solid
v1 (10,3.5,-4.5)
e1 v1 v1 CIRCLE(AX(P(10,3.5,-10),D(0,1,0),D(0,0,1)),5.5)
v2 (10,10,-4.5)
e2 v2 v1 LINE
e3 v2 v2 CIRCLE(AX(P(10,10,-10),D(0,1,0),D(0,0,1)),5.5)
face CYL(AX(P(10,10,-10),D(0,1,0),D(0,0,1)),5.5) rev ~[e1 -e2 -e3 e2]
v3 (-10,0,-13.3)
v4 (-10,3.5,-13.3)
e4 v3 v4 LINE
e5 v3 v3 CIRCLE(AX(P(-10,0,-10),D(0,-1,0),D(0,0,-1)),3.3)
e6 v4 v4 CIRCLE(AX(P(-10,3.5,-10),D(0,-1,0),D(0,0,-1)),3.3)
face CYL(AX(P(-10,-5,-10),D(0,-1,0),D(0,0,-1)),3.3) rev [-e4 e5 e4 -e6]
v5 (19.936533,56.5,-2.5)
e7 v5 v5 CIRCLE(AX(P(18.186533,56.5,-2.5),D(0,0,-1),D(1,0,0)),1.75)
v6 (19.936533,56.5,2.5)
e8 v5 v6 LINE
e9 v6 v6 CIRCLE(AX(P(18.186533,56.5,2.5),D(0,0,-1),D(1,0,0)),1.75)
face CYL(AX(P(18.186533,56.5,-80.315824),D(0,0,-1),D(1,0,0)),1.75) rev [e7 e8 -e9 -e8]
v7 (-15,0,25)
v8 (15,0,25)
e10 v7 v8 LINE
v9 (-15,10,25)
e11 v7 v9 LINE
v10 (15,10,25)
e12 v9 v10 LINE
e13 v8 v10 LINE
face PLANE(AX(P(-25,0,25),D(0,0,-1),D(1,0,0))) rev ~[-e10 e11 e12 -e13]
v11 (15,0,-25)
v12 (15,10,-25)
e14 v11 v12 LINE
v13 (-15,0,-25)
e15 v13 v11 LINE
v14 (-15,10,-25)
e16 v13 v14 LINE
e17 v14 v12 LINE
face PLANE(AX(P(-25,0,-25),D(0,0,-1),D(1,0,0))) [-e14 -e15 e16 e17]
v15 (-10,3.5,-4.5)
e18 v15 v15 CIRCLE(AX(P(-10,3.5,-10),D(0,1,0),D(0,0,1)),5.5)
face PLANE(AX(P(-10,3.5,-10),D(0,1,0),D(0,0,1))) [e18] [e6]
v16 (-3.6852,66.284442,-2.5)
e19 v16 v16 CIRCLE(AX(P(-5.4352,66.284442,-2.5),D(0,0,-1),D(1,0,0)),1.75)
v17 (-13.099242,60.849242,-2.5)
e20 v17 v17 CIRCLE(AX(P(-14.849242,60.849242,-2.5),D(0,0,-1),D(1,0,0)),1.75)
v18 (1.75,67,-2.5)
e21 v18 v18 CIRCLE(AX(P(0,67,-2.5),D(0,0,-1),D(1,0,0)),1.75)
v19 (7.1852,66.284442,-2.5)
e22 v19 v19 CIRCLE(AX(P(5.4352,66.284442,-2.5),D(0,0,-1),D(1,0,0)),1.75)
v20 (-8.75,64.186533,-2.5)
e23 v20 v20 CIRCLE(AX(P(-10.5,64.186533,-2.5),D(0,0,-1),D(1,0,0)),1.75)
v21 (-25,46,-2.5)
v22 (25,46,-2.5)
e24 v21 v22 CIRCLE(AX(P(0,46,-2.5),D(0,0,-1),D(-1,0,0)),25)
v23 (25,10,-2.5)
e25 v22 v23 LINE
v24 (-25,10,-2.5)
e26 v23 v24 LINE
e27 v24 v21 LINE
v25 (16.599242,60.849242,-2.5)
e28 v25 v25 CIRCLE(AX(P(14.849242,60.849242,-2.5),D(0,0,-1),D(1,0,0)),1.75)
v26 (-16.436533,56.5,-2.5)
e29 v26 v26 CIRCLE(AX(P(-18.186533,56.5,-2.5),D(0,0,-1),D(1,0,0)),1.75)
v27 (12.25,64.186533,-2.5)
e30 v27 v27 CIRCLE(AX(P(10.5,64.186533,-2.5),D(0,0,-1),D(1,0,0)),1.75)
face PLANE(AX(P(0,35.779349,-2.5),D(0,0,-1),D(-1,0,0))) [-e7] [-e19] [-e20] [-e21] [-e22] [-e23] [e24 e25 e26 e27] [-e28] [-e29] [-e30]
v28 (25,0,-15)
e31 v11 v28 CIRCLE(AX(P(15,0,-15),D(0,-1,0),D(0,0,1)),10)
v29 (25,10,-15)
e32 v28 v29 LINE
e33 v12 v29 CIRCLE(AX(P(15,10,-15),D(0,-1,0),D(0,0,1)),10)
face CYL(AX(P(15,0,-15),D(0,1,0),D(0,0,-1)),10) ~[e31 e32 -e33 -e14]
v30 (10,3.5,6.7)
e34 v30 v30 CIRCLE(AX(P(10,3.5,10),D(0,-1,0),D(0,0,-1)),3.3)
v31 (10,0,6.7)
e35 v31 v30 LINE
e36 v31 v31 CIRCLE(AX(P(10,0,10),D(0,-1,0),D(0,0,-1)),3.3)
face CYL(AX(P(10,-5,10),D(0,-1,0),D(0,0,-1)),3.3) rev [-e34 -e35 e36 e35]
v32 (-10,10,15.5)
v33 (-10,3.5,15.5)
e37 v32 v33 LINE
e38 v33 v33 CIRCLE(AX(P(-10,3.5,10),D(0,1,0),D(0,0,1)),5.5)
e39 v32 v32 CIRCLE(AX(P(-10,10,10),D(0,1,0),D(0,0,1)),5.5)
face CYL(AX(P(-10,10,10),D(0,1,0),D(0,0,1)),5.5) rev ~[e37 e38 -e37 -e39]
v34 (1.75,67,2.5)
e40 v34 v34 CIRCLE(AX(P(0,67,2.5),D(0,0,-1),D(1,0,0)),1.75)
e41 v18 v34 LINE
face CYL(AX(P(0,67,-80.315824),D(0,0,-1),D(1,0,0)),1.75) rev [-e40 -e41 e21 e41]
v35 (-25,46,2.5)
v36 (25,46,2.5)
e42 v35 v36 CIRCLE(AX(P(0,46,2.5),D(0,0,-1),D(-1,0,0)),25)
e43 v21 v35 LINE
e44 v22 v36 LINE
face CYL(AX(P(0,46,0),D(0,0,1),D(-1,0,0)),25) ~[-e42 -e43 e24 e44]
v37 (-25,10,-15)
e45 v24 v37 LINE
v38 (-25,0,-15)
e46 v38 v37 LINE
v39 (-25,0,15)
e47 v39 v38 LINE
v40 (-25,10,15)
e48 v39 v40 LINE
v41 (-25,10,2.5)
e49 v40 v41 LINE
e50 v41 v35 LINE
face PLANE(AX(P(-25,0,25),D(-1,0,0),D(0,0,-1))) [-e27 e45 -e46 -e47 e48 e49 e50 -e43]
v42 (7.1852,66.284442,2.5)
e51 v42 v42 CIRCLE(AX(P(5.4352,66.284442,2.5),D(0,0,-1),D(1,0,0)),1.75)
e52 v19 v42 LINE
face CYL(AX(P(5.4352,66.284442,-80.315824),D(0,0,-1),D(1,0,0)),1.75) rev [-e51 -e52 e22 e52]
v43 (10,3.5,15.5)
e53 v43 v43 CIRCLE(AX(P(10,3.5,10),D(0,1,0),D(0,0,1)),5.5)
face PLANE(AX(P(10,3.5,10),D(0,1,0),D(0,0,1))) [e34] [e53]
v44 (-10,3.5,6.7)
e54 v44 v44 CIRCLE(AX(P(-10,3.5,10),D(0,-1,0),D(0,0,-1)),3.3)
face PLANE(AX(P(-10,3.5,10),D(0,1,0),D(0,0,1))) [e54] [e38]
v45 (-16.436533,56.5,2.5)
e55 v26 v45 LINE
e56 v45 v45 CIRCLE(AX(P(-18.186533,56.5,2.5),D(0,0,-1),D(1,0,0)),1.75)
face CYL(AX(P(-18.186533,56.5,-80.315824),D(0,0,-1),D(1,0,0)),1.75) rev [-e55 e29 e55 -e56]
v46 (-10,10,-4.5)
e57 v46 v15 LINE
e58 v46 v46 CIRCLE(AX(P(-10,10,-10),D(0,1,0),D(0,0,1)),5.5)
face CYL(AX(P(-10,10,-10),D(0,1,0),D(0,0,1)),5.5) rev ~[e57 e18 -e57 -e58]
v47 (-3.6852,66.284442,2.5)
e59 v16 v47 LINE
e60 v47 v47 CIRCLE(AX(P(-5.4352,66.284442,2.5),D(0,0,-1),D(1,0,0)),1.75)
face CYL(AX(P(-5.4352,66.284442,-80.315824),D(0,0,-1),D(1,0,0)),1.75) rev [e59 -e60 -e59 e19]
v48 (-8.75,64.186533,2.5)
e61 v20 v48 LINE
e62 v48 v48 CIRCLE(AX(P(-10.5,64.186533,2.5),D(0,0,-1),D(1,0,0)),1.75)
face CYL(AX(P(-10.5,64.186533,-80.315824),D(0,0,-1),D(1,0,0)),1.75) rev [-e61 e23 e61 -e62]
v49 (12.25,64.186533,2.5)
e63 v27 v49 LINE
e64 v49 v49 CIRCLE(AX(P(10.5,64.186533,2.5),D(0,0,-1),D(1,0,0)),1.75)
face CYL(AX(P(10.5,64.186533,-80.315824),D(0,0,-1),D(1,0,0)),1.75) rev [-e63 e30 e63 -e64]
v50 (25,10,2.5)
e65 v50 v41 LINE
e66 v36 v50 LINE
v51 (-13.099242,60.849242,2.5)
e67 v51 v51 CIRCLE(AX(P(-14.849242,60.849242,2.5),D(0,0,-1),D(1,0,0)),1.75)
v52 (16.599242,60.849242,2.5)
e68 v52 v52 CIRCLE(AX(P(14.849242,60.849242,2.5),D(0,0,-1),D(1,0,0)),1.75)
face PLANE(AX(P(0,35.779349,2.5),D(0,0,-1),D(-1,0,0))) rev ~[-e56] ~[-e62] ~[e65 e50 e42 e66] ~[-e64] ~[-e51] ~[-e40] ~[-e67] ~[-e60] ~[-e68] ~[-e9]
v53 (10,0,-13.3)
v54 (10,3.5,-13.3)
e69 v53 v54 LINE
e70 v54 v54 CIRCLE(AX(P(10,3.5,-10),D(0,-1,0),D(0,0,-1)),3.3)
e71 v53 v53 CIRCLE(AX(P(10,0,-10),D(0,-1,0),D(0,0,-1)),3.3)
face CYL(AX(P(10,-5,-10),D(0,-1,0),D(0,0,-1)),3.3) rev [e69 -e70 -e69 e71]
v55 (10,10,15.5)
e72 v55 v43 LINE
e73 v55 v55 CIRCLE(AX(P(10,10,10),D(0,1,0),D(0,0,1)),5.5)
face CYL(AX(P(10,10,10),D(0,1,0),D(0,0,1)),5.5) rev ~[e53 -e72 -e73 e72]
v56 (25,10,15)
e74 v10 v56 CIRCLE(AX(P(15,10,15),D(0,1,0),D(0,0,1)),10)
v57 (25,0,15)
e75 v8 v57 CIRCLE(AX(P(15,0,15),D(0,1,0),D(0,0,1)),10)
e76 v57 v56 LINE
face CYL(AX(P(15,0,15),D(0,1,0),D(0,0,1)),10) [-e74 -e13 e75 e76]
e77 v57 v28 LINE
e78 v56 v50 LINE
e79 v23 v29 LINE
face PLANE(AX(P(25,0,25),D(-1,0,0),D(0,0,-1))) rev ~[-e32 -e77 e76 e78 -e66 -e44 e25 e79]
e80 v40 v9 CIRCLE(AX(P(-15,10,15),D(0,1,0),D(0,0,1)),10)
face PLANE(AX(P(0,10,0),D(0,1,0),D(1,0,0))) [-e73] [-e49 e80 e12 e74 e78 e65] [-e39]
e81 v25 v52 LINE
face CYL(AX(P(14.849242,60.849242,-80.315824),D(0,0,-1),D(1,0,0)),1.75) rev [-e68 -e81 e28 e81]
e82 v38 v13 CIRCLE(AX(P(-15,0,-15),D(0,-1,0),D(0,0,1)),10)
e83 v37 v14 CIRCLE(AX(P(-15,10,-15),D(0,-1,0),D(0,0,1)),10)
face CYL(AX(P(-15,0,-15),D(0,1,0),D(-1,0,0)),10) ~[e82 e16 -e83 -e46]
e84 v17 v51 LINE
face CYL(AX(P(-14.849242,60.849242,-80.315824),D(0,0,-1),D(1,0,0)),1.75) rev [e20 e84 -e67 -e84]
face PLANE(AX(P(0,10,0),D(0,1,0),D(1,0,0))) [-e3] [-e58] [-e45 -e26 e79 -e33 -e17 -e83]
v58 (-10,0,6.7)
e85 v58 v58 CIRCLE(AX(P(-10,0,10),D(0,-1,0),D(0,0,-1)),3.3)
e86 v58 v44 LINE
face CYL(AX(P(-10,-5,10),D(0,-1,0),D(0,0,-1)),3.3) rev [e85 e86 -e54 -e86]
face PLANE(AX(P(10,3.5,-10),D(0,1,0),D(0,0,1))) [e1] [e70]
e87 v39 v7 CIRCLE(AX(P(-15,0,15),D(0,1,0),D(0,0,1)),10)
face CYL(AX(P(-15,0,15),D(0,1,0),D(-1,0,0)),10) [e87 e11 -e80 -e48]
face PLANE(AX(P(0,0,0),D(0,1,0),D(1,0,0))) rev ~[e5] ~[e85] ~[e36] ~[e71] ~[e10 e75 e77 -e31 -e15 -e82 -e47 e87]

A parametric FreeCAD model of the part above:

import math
import FreeCAD as App
import Part
import Sketcher

V = App.Vector


def edges_at(feature, points):
    """Names of the edges that pass closest to the given points."""
    edges = feature.Shape.Edges
    near = lambda p: min(range(len(edges)), key=lambda i: edges[i].distToShape(Part.Vertex(*p))[0])
    return sorted({f"Edge{near(p) + 1}" for p in points})


def add_polygon(sketch, points):
    """Adds a closed chain of lines whose ends are joined by coincident constraints."""
    first, n = sketch.GeometryCount, len(points)
    for a, b in zip(points, points[1:] + points[:1]):
        sketch.addGeometry(Part.LineSegment(App.Vector(*a, 0), App.Vector(*b, 0)), False)
    for i in range(n):
        sketch.addConstraint(Sketcher.Constraint("Coincident", first + i, 2, first + (i + 1) % n, 1))

doc = App.newDocument("Part")
body = doc.addObject("PartDesign::Body", "Body")

sketch1 = body.newObject("Sketcher::SketchObject", "Sketch")
sketch1.AttachmentSupport = (doc.getObject("XZ_Plane"), [""])
sketch1.MapMode = "FlatFace"
add_polygon(sketch1, [(-25, -25), (-25, 25), (25, 25), (25, -25)])
sketch1.addConstraint([
    Sketcher.Constraint("Vertical", 0),
    Sketcher.Constraint("Horizontal", 1),
    Sketcher.Constraint("Vertical", 2),
    Sketcher.Constraint("Horizontal", 3),
    Sketcher.Constraint("Symmetric", 0, 2, 2, 2, -1, 1),
    Sketcher.Constraint("Equal", 3, 0),
    Sketcher.Constraint("DistanceX", 1, 1, 1, 2, 50.0),
])
pad1 = body.newObject("PartDesign::Pad", "Pad")
pad1.Profile = sketch1
pad1.Length = 10
pad1.Reversed = True

sketch2 = body.newObject("Sketcher::SketchObject", "Sketch001")
sketch2.AttachmentSupport = (doc.getObject("XY_Plane"), [""])
sketch2.MapMode = "FlatFace"
sketch2.addGeometry([
    Part.LineSegment(V(25, 10, 0), V(25, 46, 0)),
    Part.ArcOfCircle(Part.Circle(V(0, 46, 0), V(0, 0, 1), 25), math.radians(0), math.radians(180)),
    Part.LineSegment(V(-25, 46, 0), V(-25, 10, 0)),
    Part.LineSegment(V(-25, 10, 0), V(25, 10, 0)),
], False)
sketch2.addConstraint([
    Sketcher.Constraint("Tangent", 0, 2, 1, 1),
    Sketcher.Constraint("Tangent", 1, 2, 2, 1),
    Sketcher.Constraint("Coincident", 2, 2, 3, 1),
    Sketcher.Constraint("Coincident", 3, 2, 0, 1),
    Sketcher.Constraint("Vertical", 0),
    Sketcher.Constraint("Vertical", 2),
    Sketcher.Constraint("Horizontal", 3),
    Sketcher.Constraint("PointOnObject", 1, 3, -2),
    Sketcher.Constraint("Radius", 1, 25.0),
    Sketcher.Constraint("DistanceY", 0, 1, 0, 2, 36.0),
    Sketcher.Constraint("DistanceY", -1, 1, 1, 3, 46.0),
])
pad2 = body.newObject("PartDesign::Pad", "Pad001")
pad2.Profile = sketch2
pad2.Length = 5
pad2.Midplane = True

sketch3 = body.newObject("Sketcher::SketchObject", "Sketch002")
sketch3.AttachmentSupport = (doc.getObject("XY_Plane"), [""])
sketch3.MapMode = "FlatFace"
sketch3.addGeometry([
    Part.Circle(V(0, 67, 0), V(0, 0, 1), 1.8),
    Part.Circle(V(5.4, 66.3, 0), V(0, 0, 1), 1.8),
    Part.Circle(V(10.5, 64.2, 0), V(0, 0, 1), 1.8),
    Part.Circle(V(14.8, 60.8, 0), V(0, 0, 1), 1.8),
    Part.Circle(V(18.2, 56.5, 0), V(0, 0, 1), 1.8),
    Part.Circle(V(-18.2, 56.5, 0), V(0, 0, 1), 1.8),
    Part.Circle(V(-14.8, 60.8, 0), V(0, 0, 1), 1.8),
    Part.Circle(V(-10.5, 64.2, 0), V(0, 0, 1), 1.8),
    Part.Circle(V(-5.4, 66.3, 0), V(0, 0, 1), 1.8),
], False)
sketch3.addConstraint([
    Sketcher.Constraint("Equal", 0, 1),
    Sketcher.Constraint("Equal", 1, 2),
    Sketcher.Constraint("Equal", 2, 3),
    Sketcher.Constraint("Equal", 3, 4),
    Sketcher.Constraint("Equal", 4, 5),
    Sketcher.Constraint("Equal", 5, 6),
    Sketcher.Constraint("Equal", 6, 7),
    Sketcher.Constraint("Equal", 7, 8),
    Sketcher.Constraint("Symmetric", 4, 3, 5, 3, -2),
    Sketcher.Constraint("Symmetric", 3, 3, 6, 3, -2),
    Sketcher.Constraint("Symmetric", 2, 3, 7, 3, -2),
    Sketcher.Constraint("Symmetric", 1, 3, 8, 3, -2),
    Sketcher.Constraint("PointOnObject", 0, 3, -2),
    Sketcher.Constraint("Diameter", 0, 3.5),
    Sketcher.Constraint("DistanceY", -1, 1, 0, 3, 67.0),
    Sketcher.Constraint("DistanceX", 7, 3, 2, 3, 21.0),
    Sketcher.Constraint("DistanceY", -1, 1, 4, 3, 56.5),
    Sketcher.Constraint("DistanceX", -1, 1, 1, 3, 5.4352),
    Sketcher.Constraint("DistanceY", 3, 3, 1, 3, 5.4352),
    Sketcher.Constraint("DistanceY", 2, 3, 1, 3, 2.097909),
    Sketcher.Constraint("DistanceX", 3, 3, 4, 3, 3.337291),
    Sketcher.Constraint("DistanceY", -1, 1, 1, 3, 66.284442),
    Sketcher.Constraint("DistanceX", -1, 1, 3, 3, 14.849242),
])
pocket1 = body.newObject("PartDesign::Pocket", "Pocket")
pocket1.Profile = sketch3
pocket1.Type = "ThroughAll"
pocket1.Midplane = True

sketch4 = body.newObject("Sketcher::SketchObject", "Sketch003")
sketch4.AttachmentSupport = (doc.getObject("XZ_Plane"), [""])
sketch4.MapMode = "FlatFace"
sketch4.addGeometry([
    Part.Circle(V(-10, 10, 0), V(0, 0, 1), 3.3),
    Part.Circle(V(10, 10, 0), V(0, 0, 1), 3.3),
    Part.Circle(V(10, -10, 0), V(0, 0, 1), 3.3),
    Part.Circle(V(-10, -10, 0), V(0, 0, 1), 3.3),
], False)
sketch4.addConstraint([
    Sketcher.Constraint("Equal", 0, 1),
    Sketcher.Constraint("Equal", 1, 2),
    Sketcher.Constraint("Equal", 2, 3),
    Sketcher.Constraint("Symmetric", 0, 3, 2, 3, -1, 1),
    Sketcher.Constraint("Symmetric", 1, 3, 3, 3, -1, 1),
    Sketcher.Constraint("Symmetric", 0, 3, 1, 3, -2),
    Sketcher.Constraint("Diameter", 0, 6.6),
    Sketcher.Constraint("DistanceX", 0, 3, -1, 1, 10.0),
    Sketcher.Constraint("DistanceY", -1, 1, 0, 3, 10.0),
])
pocket2 = body.newObject("PartDesign::Pocket", "Pocket001")
pocket2.Profile = sketch4
pocket2.Type = "ThroughAll"
pocket2.Midplane = True
doc.recompute()

fillet = body.newObject("PartDesign::Fillet", "Fillet")
fillet.Base = (pocket2, edges_at(pocket2, [
    (-25, 5, 25),
    (-25, 5, -25),
    (25, 5, -25),
    (25, 5, 25),
]))
fillet.Radius = 10

sketch5 = body.newObject("Sketcher::SketchObject", "Sketch004")
sketch5.AttachmentSupport = (doc.getObject("XZ_Plane"), [""])
sketch5.MapMode = "FlatFace"
sketch5.AttachmentOffset = App.Placement(V(0, 0, -10), App.Rotation())
sketch5.addGeometry([
    Part.Circle(V(-10, 10, 0), V(0, 0, 1), 6),
    Part.Circle(V(10, 10, 0), V(0, 0, 1), 6),
    Part.Circle(V(10, -10, 0), V(0, 0, 1), 6),
    Part.Circle(V(-10, -10, 0), V(0, 0, 1), 6),
], False)
sketch5.addConstraint([
    Sketcher.Constraint("Equal", 0, 1),
    Sketcher.Constraint("Equal", 1, 2),
    Sketcher.Constraint("Equal", 2, 3),
    Sketcher.Constraint("Symmetric", 0, 3, 2, 3, -1, 1),
    Sketcher.Constraint("Symmetric", 1, 3, 3, 3, -1, 1),
    Sketcher.Constraint("Symmetric", 0, 3, 1, 3, -2),
    Sketcher.Constraint("Diameter", 0, 11.0),
    Sketcher.Constraint("DistanceX", 0, 3, -1, 1, 10.0),
    Sketcher.Constraint("DistanceY", -1, 1, 0, 3, 10.0),
])
pocket3 = body.newObject("PartDesign::Pocket", "Pocket002")
pocket3.Profile = sketch5
pocket3.Length = 6.5
pocket3.Reversed = True

doc.recompute()
